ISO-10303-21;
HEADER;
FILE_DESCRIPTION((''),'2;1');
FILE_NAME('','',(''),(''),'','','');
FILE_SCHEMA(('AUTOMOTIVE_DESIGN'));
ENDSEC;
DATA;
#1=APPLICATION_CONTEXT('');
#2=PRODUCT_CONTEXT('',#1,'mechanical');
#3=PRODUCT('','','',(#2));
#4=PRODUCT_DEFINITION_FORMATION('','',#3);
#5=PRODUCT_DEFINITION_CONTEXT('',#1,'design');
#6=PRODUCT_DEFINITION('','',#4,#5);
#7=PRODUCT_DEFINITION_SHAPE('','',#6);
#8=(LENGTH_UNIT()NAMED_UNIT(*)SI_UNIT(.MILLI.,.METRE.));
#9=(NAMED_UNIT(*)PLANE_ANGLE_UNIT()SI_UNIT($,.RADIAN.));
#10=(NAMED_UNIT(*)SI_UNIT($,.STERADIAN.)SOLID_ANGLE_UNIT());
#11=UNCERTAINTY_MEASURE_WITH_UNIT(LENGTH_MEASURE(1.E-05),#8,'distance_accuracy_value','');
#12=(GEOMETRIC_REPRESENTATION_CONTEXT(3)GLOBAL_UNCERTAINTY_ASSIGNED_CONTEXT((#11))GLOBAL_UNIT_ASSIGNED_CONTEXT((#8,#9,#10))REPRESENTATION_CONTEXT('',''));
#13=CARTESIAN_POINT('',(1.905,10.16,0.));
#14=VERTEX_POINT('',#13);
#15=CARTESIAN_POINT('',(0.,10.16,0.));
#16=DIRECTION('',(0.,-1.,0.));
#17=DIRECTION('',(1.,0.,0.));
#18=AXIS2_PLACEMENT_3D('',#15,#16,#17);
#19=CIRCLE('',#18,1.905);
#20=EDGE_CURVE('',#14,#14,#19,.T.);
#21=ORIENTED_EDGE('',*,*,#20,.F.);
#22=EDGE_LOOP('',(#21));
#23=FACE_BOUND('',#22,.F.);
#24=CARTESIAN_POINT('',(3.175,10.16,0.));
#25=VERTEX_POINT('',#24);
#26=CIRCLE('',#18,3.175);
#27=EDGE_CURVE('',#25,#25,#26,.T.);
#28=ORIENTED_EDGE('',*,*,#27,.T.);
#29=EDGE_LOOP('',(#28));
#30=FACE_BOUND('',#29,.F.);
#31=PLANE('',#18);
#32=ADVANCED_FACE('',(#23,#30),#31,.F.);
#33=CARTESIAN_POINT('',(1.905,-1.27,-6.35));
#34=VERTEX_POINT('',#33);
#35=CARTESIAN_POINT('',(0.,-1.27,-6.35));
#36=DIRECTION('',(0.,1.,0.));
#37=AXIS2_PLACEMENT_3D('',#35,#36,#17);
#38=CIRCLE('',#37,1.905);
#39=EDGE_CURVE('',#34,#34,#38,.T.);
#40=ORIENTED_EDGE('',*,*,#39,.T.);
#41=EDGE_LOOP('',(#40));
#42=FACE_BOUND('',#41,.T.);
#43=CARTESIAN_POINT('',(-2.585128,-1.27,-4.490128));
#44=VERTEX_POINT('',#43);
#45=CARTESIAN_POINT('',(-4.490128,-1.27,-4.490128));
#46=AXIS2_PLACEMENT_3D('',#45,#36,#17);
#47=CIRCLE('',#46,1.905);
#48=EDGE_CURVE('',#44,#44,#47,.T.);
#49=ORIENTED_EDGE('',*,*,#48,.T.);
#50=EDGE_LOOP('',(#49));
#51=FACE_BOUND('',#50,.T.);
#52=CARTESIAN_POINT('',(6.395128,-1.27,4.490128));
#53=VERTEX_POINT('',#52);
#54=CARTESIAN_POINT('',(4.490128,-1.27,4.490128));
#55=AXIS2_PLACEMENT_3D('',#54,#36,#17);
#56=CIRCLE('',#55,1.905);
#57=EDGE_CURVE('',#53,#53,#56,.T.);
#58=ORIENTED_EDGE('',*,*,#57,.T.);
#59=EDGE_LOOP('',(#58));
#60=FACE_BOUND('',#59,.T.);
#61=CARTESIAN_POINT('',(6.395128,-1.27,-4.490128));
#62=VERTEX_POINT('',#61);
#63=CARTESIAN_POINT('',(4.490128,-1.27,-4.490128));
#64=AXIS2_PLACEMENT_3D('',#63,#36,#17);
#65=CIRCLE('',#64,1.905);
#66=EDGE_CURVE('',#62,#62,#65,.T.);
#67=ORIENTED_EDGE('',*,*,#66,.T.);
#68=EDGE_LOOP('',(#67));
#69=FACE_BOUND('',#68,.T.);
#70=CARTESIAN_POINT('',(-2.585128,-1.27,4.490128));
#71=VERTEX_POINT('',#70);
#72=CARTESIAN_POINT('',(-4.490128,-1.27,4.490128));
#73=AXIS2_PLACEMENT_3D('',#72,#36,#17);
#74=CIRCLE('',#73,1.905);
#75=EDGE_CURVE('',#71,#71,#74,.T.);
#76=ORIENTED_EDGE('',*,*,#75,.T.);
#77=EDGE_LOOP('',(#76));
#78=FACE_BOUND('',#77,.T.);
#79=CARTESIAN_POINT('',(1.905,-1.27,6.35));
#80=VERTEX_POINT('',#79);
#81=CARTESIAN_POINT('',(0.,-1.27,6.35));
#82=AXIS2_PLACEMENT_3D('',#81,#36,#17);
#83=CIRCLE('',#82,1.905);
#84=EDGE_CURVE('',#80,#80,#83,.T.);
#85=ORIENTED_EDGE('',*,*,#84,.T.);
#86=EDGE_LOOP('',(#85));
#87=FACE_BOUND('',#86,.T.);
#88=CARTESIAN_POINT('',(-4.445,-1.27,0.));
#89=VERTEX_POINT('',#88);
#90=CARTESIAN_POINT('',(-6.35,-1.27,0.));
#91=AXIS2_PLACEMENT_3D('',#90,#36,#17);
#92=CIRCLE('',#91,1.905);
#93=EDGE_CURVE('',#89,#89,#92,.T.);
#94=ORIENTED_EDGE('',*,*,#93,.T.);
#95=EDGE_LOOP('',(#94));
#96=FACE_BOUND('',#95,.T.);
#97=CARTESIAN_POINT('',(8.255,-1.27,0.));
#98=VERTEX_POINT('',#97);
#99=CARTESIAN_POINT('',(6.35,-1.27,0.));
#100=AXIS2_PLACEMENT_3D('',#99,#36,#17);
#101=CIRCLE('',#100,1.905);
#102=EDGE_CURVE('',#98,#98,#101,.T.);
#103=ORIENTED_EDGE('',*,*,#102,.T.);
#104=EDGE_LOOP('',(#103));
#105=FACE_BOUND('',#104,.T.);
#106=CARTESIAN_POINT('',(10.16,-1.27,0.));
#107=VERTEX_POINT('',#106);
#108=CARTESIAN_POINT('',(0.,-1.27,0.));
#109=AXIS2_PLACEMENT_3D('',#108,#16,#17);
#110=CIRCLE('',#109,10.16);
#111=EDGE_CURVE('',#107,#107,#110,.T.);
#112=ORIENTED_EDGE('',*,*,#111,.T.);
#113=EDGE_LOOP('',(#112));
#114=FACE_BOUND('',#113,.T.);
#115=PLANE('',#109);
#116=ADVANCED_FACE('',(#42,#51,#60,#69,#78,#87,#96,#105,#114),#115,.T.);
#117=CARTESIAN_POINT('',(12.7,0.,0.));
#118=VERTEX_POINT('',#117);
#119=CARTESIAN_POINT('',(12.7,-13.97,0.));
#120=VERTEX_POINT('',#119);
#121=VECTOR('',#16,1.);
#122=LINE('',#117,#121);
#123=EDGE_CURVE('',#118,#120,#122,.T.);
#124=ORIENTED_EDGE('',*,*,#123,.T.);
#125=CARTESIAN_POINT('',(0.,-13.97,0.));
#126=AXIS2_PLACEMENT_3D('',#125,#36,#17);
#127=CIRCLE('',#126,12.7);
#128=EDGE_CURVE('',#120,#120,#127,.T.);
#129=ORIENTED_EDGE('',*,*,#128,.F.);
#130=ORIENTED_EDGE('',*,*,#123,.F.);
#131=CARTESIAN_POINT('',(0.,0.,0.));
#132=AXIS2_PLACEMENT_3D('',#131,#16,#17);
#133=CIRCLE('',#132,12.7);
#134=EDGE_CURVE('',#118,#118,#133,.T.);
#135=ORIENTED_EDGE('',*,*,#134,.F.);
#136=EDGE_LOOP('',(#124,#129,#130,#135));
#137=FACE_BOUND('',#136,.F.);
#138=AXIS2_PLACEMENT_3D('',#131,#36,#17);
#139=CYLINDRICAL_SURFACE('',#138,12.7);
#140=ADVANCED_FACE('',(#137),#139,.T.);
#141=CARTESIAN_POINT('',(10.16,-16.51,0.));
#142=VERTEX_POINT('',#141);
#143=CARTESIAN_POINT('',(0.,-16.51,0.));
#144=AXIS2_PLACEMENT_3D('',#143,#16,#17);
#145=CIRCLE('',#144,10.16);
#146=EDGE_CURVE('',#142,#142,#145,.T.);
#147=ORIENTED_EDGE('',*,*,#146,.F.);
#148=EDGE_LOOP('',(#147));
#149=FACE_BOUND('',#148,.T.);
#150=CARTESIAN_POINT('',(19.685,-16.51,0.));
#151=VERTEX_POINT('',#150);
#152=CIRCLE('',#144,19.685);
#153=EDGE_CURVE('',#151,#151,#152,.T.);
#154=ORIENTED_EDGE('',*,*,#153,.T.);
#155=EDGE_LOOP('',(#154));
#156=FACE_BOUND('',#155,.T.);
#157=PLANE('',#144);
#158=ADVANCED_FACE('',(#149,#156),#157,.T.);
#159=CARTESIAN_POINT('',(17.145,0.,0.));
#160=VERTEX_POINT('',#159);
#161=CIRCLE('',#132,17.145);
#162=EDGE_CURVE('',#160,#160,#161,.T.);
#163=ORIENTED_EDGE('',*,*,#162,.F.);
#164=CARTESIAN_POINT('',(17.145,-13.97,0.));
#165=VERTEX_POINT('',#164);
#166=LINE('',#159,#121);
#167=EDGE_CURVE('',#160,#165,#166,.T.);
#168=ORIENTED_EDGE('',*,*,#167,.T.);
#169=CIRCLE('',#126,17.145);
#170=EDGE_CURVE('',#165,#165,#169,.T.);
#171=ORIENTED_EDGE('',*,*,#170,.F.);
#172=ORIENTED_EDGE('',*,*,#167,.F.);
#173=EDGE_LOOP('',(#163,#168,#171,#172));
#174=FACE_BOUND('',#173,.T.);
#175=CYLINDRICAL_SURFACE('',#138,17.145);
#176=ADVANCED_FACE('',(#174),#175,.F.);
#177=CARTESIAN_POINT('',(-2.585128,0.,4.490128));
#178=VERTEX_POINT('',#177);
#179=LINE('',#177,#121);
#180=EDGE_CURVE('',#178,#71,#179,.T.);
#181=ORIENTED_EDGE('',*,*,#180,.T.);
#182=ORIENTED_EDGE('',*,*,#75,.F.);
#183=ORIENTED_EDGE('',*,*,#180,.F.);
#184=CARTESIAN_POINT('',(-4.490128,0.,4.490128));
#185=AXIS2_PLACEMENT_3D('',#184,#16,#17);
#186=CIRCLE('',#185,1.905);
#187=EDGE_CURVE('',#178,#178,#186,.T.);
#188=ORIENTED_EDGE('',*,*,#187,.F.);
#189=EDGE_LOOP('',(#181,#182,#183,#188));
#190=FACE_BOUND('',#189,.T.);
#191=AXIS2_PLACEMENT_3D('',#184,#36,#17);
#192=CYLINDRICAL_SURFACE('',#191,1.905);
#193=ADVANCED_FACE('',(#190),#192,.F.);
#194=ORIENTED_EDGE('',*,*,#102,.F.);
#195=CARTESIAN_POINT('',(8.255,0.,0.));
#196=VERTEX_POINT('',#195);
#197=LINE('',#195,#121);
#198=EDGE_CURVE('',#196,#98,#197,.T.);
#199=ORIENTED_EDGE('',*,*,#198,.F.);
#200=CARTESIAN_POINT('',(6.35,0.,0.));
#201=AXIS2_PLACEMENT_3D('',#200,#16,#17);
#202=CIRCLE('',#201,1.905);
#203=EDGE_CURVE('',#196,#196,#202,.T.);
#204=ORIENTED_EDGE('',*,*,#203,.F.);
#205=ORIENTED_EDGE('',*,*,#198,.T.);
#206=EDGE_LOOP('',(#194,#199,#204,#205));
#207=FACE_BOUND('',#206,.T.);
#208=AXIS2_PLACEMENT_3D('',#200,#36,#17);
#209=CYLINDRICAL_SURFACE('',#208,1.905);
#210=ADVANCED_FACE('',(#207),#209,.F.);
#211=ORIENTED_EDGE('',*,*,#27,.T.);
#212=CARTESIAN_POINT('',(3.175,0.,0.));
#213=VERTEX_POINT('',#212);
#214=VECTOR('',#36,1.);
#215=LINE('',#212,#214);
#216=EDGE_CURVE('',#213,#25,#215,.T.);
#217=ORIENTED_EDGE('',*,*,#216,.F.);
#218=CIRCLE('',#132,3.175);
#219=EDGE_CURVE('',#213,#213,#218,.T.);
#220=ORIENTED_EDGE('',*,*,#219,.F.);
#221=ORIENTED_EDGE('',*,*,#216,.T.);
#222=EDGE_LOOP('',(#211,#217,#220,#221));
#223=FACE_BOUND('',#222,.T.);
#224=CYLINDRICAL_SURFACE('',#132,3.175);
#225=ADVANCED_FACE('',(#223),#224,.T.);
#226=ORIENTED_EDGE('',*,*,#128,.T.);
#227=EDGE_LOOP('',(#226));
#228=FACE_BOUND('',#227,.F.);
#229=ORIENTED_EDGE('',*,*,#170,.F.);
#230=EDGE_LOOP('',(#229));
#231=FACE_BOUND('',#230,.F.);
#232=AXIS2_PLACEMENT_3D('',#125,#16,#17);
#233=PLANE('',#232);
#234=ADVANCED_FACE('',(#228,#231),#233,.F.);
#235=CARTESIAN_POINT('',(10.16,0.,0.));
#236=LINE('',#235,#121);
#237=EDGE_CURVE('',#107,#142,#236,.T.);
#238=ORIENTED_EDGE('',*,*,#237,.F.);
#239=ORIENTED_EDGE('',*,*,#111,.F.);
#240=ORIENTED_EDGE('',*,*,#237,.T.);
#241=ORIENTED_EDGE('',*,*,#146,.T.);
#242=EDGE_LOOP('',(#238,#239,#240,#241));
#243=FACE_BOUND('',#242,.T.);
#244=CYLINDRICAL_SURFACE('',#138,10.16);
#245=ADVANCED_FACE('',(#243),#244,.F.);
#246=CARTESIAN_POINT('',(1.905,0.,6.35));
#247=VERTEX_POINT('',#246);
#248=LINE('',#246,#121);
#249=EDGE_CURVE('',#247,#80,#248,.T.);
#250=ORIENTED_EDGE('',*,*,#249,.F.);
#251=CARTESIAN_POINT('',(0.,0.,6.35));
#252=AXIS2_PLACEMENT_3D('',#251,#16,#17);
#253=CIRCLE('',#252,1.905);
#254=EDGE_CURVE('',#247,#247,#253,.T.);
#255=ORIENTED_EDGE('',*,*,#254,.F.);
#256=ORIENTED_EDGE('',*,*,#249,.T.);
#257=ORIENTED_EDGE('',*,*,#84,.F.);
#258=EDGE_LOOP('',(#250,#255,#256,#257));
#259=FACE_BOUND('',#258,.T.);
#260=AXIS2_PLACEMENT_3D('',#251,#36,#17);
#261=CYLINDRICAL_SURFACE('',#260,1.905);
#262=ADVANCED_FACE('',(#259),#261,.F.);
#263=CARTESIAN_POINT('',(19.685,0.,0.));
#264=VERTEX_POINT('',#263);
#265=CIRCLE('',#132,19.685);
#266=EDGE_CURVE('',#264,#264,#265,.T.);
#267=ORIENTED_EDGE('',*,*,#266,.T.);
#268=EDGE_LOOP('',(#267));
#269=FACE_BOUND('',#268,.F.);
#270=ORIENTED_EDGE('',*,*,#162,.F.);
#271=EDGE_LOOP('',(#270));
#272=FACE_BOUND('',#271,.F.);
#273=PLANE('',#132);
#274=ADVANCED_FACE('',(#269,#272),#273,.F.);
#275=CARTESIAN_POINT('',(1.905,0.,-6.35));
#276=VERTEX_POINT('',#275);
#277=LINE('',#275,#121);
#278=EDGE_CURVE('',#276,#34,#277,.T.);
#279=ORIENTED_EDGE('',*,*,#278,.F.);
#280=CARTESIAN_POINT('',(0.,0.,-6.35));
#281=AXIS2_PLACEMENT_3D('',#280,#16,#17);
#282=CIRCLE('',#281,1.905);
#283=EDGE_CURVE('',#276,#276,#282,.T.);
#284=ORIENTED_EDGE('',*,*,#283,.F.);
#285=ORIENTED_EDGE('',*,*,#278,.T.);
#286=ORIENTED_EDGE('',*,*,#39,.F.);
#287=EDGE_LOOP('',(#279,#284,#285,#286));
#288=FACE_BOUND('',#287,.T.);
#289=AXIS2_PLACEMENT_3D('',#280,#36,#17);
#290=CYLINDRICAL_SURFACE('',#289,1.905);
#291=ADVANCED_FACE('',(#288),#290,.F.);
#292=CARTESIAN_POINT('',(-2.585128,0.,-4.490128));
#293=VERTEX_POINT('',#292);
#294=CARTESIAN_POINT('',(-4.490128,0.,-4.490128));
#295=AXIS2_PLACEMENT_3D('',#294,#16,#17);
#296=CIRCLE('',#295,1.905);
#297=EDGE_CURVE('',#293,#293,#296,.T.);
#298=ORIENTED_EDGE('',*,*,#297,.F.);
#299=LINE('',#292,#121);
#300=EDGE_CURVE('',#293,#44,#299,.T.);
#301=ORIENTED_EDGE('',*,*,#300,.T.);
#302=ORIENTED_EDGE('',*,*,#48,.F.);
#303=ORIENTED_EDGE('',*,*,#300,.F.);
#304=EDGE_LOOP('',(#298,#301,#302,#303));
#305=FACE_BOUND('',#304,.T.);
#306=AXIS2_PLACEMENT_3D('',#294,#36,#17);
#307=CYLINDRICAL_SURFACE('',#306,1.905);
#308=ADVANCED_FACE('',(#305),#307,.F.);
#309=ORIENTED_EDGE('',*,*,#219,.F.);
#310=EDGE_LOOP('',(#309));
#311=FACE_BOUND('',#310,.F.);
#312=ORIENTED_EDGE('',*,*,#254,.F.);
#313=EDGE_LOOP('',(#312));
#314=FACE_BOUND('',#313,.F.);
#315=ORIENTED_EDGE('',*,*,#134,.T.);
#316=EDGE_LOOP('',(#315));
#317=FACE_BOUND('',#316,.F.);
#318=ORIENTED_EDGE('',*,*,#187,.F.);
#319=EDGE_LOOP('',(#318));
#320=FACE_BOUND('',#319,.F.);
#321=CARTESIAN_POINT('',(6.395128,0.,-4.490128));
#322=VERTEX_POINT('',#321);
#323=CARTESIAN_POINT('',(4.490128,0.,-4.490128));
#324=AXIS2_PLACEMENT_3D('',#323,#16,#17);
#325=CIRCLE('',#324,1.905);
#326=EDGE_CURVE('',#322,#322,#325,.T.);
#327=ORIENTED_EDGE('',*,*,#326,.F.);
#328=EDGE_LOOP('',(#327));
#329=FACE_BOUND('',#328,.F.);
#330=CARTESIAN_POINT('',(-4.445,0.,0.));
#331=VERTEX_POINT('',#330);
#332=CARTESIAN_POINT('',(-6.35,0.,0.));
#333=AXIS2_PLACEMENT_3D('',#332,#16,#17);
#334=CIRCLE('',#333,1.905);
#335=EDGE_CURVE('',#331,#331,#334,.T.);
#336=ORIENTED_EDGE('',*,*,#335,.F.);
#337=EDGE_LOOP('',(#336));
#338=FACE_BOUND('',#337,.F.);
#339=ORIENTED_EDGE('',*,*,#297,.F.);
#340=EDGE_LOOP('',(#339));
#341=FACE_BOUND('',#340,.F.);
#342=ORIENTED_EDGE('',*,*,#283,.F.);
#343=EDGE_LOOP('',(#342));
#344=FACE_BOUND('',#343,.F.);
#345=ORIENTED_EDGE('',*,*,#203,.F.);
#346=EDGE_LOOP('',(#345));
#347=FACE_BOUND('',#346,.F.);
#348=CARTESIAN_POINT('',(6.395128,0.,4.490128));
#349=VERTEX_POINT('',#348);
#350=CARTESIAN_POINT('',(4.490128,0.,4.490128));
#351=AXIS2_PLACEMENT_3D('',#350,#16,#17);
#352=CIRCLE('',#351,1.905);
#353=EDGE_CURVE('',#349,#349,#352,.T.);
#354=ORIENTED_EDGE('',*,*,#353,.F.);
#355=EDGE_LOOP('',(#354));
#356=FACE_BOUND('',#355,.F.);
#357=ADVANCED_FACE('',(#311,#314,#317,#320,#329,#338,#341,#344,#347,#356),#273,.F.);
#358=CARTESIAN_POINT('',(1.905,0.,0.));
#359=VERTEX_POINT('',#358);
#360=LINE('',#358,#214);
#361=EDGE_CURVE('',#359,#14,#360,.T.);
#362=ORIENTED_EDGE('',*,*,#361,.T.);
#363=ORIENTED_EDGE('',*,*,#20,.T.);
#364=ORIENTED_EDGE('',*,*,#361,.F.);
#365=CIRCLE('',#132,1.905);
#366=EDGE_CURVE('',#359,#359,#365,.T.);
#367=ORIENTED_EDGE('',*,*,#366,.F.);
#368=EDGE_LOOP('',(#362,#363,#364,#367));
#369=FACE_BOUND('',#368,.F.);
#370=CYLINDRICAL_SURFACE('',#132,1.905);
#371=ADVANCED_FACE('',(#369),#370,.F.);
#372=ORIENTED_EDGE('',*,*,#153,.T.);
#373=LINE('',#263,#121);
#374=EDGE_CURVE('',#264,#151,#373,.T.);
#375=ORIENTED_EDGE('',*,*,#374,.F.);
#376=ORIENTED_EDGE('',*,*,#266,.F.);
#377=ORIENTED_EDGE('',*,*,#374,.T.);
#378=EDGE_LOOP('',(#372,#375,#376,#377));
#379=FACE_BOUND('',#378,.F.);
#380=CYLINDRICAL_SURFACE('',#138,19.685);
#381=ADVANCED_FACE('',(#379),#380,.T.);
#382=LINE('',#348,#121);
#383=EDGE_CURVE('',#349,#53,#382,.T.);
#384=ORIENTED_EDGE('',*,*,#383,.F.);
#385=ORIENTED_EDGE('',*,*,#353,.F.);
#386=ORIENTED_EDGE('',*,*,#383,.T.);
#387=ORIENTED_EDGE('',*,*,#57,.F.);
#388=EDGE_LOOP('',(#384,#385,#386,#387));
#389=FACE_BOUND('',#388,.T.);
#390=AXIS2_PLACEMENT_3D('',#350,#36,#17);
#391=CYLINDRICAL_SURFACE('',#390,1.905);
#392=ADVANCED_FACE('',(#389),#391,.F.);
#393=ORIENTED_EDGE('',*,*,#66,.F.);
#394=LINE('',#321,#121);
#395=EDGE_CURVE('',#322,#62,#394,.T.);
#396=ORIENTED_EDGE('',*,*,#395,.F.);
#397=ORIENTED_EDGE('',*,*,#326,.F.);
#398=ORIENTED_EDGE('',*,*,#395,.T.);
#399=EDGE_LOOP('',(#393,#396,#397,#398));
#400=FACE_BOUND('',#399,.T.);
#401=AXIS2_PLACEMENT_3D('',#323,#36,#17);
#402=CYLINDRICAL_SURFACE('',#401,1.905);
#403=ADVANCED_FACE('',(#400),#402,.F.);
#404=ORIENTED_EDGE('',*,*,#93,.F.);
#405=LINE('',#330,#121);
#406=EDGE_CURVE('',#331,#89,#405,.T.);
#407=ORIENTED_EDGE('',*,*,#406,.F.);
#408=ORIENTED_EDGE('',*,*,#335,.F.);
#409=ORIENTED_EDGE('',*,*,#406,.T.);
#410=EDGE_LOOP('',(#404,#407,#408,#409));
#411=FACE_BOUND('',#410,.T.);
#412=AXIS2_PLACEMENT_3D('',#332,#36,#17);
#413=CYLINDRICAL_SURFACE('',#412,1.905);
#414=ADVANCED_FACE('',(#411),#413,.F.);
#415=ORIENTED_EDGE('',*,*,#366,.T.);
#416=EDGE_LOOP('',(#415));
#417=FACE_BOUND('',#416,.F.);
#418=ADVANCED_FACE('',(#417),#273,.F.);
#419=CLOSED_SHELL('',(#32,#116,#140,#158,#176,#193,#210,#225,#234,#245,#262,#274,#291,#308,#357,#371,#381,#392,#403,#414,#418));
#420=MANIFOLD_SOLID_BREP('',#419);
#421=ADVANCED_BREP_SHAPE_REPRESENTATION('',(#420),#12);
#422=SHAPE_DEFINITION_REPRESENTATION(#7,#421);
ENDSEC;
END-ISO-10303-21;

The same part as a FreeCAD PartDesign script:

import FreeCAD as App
import Part
import Sketcher
from FreeCAD import Vector
Q = App.Units.Quantity


def faces_at(feature, points):
    """Names of the faces that lie closest to the given points."""
    faces = feature.Shape.Faces
    near = lambda p: min(range(len(faces)), key=lambda i: faces[i].distToShape(Part.Vertex(*p))[0])
    return sorted({f"Face{near(p) + 1}" for p in points})

doc = App.newDocument("Part")
body = doc.addObject("PartDesign::Body", "Body")

# Sketch on XZ plane
sketch1 = body.newObject("Sketcher::SketchObject", "Sketch")
sketch1.AttachmentSupport = (doc.getObject("XZ_Plane"), [""])
sketch1.MapMode = "FlatFace"
sketch1.addGeometry([
    Part.Circle(Vector(0, 0, 0), Vector(0, 0, 1), 19.685),
    Part.Circle(Vector(0, 0, 0), Vector(0, 0, 1), 10.16),
], False)
sketch1.addConstraint([
    Sketcher.Constraint("Coincident", 0, 3, -1, 1),
    Sketcher.Constraint("Coincident", 1, 3, -1, 1),
    Sketcher.Constraint("Diameter", 1, Q("0.8 in")),
    Sketcher.Constraint("Diameter", 0, Q("1.55 in")),
])
pad1 = body.newObject("PartDesign::Pad", "Pad")
pad1.Profile = sketch1
pad1.Length = Q("0.65 in")
doc.recompute()

thickness = body.newObject("PartDesign::Thickness", "Thickness")
thickness.Base = (pad1, faces_at(pad1, [(-7.874, 0, -7.874)]))
thickness.Value = Q("0.1 in")
thickness.Reversed = True
thickness.Join = "Arc"

# Sketch on XZ plane
sketch2 = body.newObject("Sketcher::SketchObject", "Sketch001")
sketch2.AttachmentSupport = (doc.getObject("XZ_Plane"), [""])
sketch2.MapMode = "FlatFace"
sketch2.addGeometry(Part.Circle(Vector(0, 0, 0), Vector(0, 0, 1), 10.16), False)
sketch2.addConstraint([
    Sketcher.Constraint("Coincident", 0, 3, -1, 1),
    Sketcher.Constraint("Diameter", 0, Q("0.8 in")),
])
pad2 = body.newObject("PartDesign::Pad", "Pad001")
pad2.Profile = sketch2
pad2.Length = Q("0.05 in")

# Sketch on XZ plane
sketch3 = body.newObject("Sketcher::SketchObject", "Sketch002")
sketch3.AttachmentSupport = (doc.getObject("XZ_Plane"), [""])
sketch3.MapMode = "FlatFace"
sketch3.addGeometry([
    Part.Circle(Vector(4.490128, 4.490128, 0), Vector(0, 0, 1), 1.905),  # 0
    Part.Circle(Vector(6.35, 0, 0), Vector(0, 0, 1), 1.905),  # 1
    Part.Circle(Vector(4.490128, -4.490128, 0), Vector(0, 0, 1), 1.905),  # 2
    Part.Circle(Vector(0, -6.35, 0), Vector(0, 0, 1), 1.905),  # 3
    Part.Circle(Vector(-4.490128, -4.490128, 0), Vector(0, 0, 1), 1.905),  # 4
    Part.Circle(Vector(-6.35, 0, 0), Vector(0, 0, 1), 1.905),  # 5
    Part.Circle(Vector(-4.490128, 4.490128, 0), Vector(0, 0, 1), 1.905),  # 6
    Part.Circle(Vector(0, 6.35, 0), Vector(0, 0, 1), 1.905),  # 7
], False)
sketch3.addConstraint([
    Sketcher.Constraint("Equal", 0, 1),
    Sketcher.Constraint("Equal", 1, 2),
    Sketcher.Constraint("Equal", 2, 3),
    Sketcher.Constraint("Equal", 3, 4),
    Sketcher.Constraint("Equal", 4, 5),
    Sketcher.Constraint("Equal", 5, 6),
    Sketcher.Constraint("Equal", 6, 7),
    Sketcher.Constraint("Symmetric", 0, 3, 4, 3, -1, 1),
    Sketcher.Constraint("Symmetric", 1, 3, 5, 3, -1, 1),
    Sketcher.Constraint("Symmetric", 2, 3, 6, 3, -1, 1),
    Sketcher.Constraint("Symmetric", 3, 3, 7, 3, -1, 1),
    Sketcher.Constraint("Symmetric", 2, 3, 4, 3, -2),
    Sketcher.Constraint("PointOnObject", 1, 3, -1),
    Sketcher.Constraint("PointOnObject", 3, 3, -2),
    Sketcher.Constraint("Diameter", 0, Q("0.15 in")),
    Sketcher.Constraint("DistanceX", 5, 3, 1, 3, Q("0.5 in")),
    Sketcher.Constraint("DistanceY", 3, 3, -1, 1, Q("0.25 in")),
    Sketcher.Constraint("DistanceX", -1, 1, 0, 3, Q("4.490128 mm")),
    Sketcher.Constraint("DistanceY", -1, 1, 0, 3, Q("4.490128 mm")),
])
pocket1 = body.newObject("PartDesign::Pocket", "Pocket")
pocket1.Profile = sketch3
pocket1.Length = Q("1 in")
pocket1.Reversed = True

# Sketch on XZ plane
sketch4 = body.newObject("Sketcher::SketchObject", "Sketch003")
sketch4.AttachmentSupport = (doc.getObject("XZ_Plane"), [""])
sketch4.MapMode = "FlatFace"
sketch4.addGeometry([
    Part.Circle(Vector(0, 0, 0), Vector(0, 0, 1), 3.175),
    Part.Circle(Vector(0, 0, 0), Vector(0, 0, 1), 1.905),
], False)
sketch4.addConstraint([
    Sketcher.Constraint("Coincident", 0, 3, -1, 1),
    Sketcher.Constraint("Coincident", 1, 3, -1, 1),
    Sketcher.Constraint("Diameter", 0, Q("0.25 in")),
    Sketcher.Constraint("Diameter", 1, Q("0.15 in")),
])
pad3 = body.newObject("PartDesign::Pad", "Pad002")
pad3.Profile = sketch4
pad3.Length = Q("0.4 in")
pad3.Reversed = True

doc.recompute()
